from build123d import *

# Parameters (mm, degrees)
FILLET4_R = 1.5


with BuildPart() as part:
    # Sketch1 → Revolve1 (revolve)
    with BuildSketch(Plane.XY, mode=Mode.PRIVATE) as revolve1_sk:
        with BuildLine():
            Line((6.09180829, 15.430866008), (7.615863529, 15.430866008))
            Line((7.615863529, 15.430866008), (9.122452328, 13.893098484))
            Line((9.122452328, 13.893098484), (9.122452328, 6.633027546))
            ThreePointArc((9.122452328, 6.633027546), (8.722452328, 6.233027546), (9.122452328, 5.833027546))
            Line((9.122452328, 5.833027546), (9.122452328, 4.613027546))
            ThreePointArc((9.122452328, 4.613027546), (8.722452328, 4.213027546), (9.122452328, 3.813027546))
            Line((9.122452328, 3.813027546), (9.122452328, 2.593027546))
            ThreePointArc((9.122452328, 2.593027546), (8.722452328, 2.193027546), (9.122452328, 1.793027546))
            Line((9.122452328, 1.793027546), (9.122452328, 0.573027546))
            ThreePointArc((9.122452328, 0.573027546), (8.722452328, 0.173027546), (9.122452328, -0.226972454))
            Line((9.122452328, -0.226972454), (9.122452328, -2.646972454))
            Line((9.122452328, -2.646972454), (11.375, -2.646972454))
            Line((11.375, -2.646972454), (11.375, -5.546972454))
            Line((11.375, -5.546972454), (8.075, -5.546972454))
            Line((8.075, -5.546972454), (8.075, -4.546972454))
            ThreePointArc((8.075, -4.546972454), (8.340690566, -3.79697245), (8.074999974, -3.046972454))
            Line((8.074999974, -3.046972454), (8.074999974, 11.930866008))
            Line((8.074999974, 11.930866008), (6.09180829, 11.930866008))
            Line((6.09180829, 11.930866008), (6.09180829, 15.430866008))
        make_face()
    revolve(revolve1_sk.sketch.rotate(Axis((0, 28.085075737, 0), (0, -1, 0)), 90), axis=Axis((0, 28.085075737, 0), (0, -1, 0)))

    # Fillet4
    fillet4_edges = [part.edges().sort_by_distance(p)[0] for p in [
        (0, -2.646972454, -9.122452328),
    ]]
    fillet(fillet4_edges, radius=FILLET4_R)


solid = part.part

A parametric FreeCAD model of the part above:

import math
import FreeCAD as App
import Part
import Sketcher

V = App.Vector


def edges_at(feature, points):
    """Names of the edges that pass closest to the given points."""
    edges = feature.Shape.Edges
    near = lambda p: min(range(len(edges)), key=lambda i: edges[i].distToShape(Part.Vertex(*p))[0])
    return sorted({f"Edge{near(p) + 1}" for p in points})

doc = App.newDocument("Part")
body = doc.addObject("PartDesign::Body", "Body")

# Sketch on XY plane
sketch1 = body.newObject("Sketcher::SketchObject", "Sketch")
sketch1.AttachmentSupport = (doc.getObject("XY_Plane"), [""])
sketch1.MapMode = "FlatFace"
sketch1.addGeometry(Part.LineSegment(V(7.62, 15.43, 0), V(6.09, 15.43, 0)), False)
sketch1.addGeometry(Part.LineSegment(V(6.09, 15.43, 0), V(6.09, 11.93, 0)), False)
sketch1.addGeometry(Part.LineSegment(V(6.09, 11.93, 0), V(8.07, 11.93, 0)), False)
sketch1.addGeometry(Part.LineSegment(V(8.07, 11.93, 0), V(8.07, -3.05, 0)), False)
sketch1.addGeometry(Part.ArcOfCircle(Part.Circle(V(7.15, -3.8, 0), V(0, 0, 1), 1.19), math.radians(-39), math.radians(39)), False)
sketch1.addGeometry(Part.LineSegment(V(8.07, -4.55, 0), V(8.07, -5.55, 0)), False)
sketch1.addGeometry(Part.LineSegment(V(8.07, -5.55, 0), V(11.38, -5.55, 0)), False)
sketch1.addGeometry(Part.LineSegment(V(11.38, -5.55, 0), V(11.38, -2.65, 0)), False)
sketch1.addGeometry(Part.LineSegment(V(11.38, -2.65, 0), V(9.12, -2.65, 0)), False)
sketch1.addGeometry(Part.LineSegment(V(9.12, -2.65, 0), V(9.12, -0.23, 0)), False)
sketch1.addGeometry(Part.ArcOfCircle(Part.Circle(V(9.12, 0.17, 0), V(0, 0, 1), 0.4), math.radians(90), math.radians(270)), False)
sketch1.addGeometry(Part.LineSegment(V(9.12, 0.57, 0), V(9.12, 1.79, 0)), False)
sketch1.addGeometry(Part.ArcOfCircle(Part.Circle(V(9.12, 2.19, 0), V(0, 0, 1), 0.4), math.radians(90), math.radians(270)), False)
sketch1.addGeometry(Part.LineSegment(V(9.12, 2.59, 0), V(9.12, 3.81, 0)), False)
sketch1.addGeometry(Part.ArcOfCircle(Part.Circle(V(9.12, 4.21, 0), V(0, 0, 1), 0.4), math.radians(90), math.radians(270)), False)
sketch1.addGeometry(Part.LineSegment(V(9.12, 4.61, 0), V(9.12, 5.83, 0)), False)
sketch1.addGeometry(Part.ArcOfCircle(Part.Circle(V(9.12, 6.23, 0), V(0, 0, 1), 0.4), math.radians(90), math.radians(270)), False)
sketch1.addGeometry(Part.LineSegment(V(9.12, 6.63, 0), V(9.12, 13.89, 0)), False)
sketch1.addGeometry(Part.LineSegment(V(9.12, 13.89, 0), V(7.62, 15.43, 0)), False)
sketch1.addConstraint(Sketcher.Constraint("Coincident", 0, 2, 1, 1))
sketch1.addConstraint(Sketcher.Constraint("Coincident", 1, 2, 2, 1))
sketch1.addConstraint(Sketcher.Constraint("Coincident", 2, 2, 3, 1))
sketch1.addConstraint(Sketcher.Constraint("Coincident", 3, 2, 4, 2))
sketch1.addConstraint(Sketcher.Constraint("Coincident", 4, 1, 5, 1))
sketch1.addConstraint(Sketcher.Constraint("Coincident", 5, 2, 6, 1))
sketch1.addConstraint(Sketcher.Constraint("Coincident", 6, 2, 7, 1))
sketch1.addConstraint(Sketcher.Constraint("Coincident", 7, 2, 8, 1))
sketch1.addConstraint(Sketcher.Constraint("Coincident", 8, 2, 9, 1))
sketch1.addConstraint(Sketcher.Constraint("Coincident", 9, 2, 10, 2))
sketch1.addConstraint(Sketcher.Constraint("Coincident", 10, 1, 11, 1))
sketch1.addConstraint(Sketcher.Constraint("Coincident", 11, 2, 12, 2))
sketch1.addConstraint(Sketcher.Constraint("Coincident", 12, 1, 13, 1))
sketch1.addConstraint(Sketcher.Constraint("Coincident", 13, 2, 14, 2))
sketch1.addConstraint(Sketcher.Constraint("Coincident", 14, 1, 15, 1))
sketch1.addConstraint(Sketcher.Constraint("Coincident", 15, 2, 16, 2))
sketch1.addConstraint(Sketcher.Constraint("Coincident", 16, 1, 17, 1))
sketch1.addConstraint(Sketcher.Constraint("Coincident", 17, 2, 18, 1))
sketch1.addConstraint(Sketcher.Constraint("Coincident", 18, 2, 0, 1))
sketch1.addConstraint(Sketcher.Constraint("Horizontal", 0))
sketch1.addConstraint(Sketcher.Constraint("Vertical", 1))
sketch1.addConstraint(Sketcher.Constraint("Horizontal", 2))
sketch1.addConstraint(Sketcher.Constraint("Vertical", 3))
sketch1.addConstraint(Sketcher.Constraint("Vertical", 5))
sketch1.addConstraint(Sketcher.Constraint("Horizontal", 6))
sketch1.addConstraint(Sketcher.Constraint("Vertical", 7))
sketch1.addConstraint(Sketcher.Constraint("Horizontal", 8))
sketch1.addConstraint(Sketcher.Constraint("Vertical", 9))
sketch1.addConstraint(Sketcher.Constraint("Vertical", 11))
sketch1.addConstraint(Sketcher.Constraint("Vertical", 13))
sketch1.addConstraint(Sketcher.Constraint("Vertical", 15))
sketch1.addConstraint(Sketcher.Constraint("Vertical", 17))
sketch1.addConstraint(Sketcher.Constraint("Equal", 10, 12))
sketch1.addConstraint(Sketcher.Constraint("Equal", 12, 14))
sketch1.addConstraint(Sketcher.Constraint("Equal", 14, 16))
sketch1.addConstraint(Sketcher.Constraint("Vertical", 10, 3, 12, 3))
sketch1.addConstraint(Sketcher.Constraint("Vertical", 12, 3, 14, 3))
sketch1.addConstraint(Sketcher.Constraint("Vertical", 14, 3, 16, 3))
sketch1.addConstraint(Sketcher.Constraint("Vertical", 3, 2, 4, 1))
sketch1.addConstraint(Sketcher.Constraint("Vertical", 16, 3, 8, 2))
sketch1.addConstraint(Sketcher.Constraint("Vertical", 9, 2, 10, 1))
sketch1.addConstraint(Sketcher.Constraint("Vertical", 11, 2, 12, 1))
sketch1.addConstraint(Sketcher.Constraint("Vertical", 13, 2, 14, 1))
sketch1.addConstraint(Sketcher.Constraint("Vertical", 15, 2, 16, 1))
sketch1.addConstraint(Sketcher.Constraint("Equal", 11, 13))
sketch1.addConstraint(Sketcher.Constraint("Equal", 13, 15))
sketch1.addConstraint(Sketcher.Constraint("Radius", 10, 0.4))
sketch1.addConstraint(Sketcher.Constraint("DistanceY", 5, 2, 5, 1, 1.0))
sketch1.addConstraint(Sketcher.Constraint("DistanceX", 6, 1, 6, 2, 3.3))
sketch1.addConstraint(Sketcher.Constraint("DistanceY", 1, 2, 1, 1, 3.5))
sketch1.addConstraint(Sketcher.Constraint("DistanceY", 7, 1, 7, 2, 2.9))
sketch1.addConstraint(Sketcher.Constraint("DistanceY", 9, 1, 9, 2, 2.42))
sketch1.addConstraint(Sketcher.Constraint("DistanceY", 11, 1, 11, 2, 1.22))
sketch1.addConstraint(Sketcher.Constraint("DistanceY", 4, 1, 3, 2, 1.5))
sketch1.addConstraint(Sketcher.Constraint("DistanceX", -1, 1, 2, 2, 8.075))
sketch1.addConstraint(Sketcher.Constraint("Radius", 4, 1.191407))
sketch1.addConstraint(Sketcher.Constraint("DistanceX", 2, 1, 2, 2, 1.983192))
sketch1.addConstraint(Sketcher.Constraint("DistanceY", 3, 2, 3, 1, 14.977838))
sketch1.addConstraint(Sketcher.Constraint("DistanceY", 17, 1, 17, 2, 7.260071))
sketch1.addConstraint(Sketcher.Constraint("DistanceY", -1, 1, 17, 2, 13.893098))
sketch1.addConstraint(Sketcher.Constraint("DistanceX", 0, 2, 0, 1, 1.524055))
sketch1.addConstraint(Sketcher.Constraint("DistanceX", 8, 2, 8, 1, 2.252548))
revolution = body.newObject("PartDesign::Revolution", "Revolution")
revolution.Profile = sketch1
revolution.ReferenceAxis = (sketch1, ["V_Axis"])
revolution.Angle = 360
doc.recompute()

fillet = body.newObject("PartDesign::Fillet", "Fillet")
fillet.Base = (revolution, edges_at(revolution, [(0, -2.647, -9.122)]))
fillet.Radius = 1.5

doc.recompute()
